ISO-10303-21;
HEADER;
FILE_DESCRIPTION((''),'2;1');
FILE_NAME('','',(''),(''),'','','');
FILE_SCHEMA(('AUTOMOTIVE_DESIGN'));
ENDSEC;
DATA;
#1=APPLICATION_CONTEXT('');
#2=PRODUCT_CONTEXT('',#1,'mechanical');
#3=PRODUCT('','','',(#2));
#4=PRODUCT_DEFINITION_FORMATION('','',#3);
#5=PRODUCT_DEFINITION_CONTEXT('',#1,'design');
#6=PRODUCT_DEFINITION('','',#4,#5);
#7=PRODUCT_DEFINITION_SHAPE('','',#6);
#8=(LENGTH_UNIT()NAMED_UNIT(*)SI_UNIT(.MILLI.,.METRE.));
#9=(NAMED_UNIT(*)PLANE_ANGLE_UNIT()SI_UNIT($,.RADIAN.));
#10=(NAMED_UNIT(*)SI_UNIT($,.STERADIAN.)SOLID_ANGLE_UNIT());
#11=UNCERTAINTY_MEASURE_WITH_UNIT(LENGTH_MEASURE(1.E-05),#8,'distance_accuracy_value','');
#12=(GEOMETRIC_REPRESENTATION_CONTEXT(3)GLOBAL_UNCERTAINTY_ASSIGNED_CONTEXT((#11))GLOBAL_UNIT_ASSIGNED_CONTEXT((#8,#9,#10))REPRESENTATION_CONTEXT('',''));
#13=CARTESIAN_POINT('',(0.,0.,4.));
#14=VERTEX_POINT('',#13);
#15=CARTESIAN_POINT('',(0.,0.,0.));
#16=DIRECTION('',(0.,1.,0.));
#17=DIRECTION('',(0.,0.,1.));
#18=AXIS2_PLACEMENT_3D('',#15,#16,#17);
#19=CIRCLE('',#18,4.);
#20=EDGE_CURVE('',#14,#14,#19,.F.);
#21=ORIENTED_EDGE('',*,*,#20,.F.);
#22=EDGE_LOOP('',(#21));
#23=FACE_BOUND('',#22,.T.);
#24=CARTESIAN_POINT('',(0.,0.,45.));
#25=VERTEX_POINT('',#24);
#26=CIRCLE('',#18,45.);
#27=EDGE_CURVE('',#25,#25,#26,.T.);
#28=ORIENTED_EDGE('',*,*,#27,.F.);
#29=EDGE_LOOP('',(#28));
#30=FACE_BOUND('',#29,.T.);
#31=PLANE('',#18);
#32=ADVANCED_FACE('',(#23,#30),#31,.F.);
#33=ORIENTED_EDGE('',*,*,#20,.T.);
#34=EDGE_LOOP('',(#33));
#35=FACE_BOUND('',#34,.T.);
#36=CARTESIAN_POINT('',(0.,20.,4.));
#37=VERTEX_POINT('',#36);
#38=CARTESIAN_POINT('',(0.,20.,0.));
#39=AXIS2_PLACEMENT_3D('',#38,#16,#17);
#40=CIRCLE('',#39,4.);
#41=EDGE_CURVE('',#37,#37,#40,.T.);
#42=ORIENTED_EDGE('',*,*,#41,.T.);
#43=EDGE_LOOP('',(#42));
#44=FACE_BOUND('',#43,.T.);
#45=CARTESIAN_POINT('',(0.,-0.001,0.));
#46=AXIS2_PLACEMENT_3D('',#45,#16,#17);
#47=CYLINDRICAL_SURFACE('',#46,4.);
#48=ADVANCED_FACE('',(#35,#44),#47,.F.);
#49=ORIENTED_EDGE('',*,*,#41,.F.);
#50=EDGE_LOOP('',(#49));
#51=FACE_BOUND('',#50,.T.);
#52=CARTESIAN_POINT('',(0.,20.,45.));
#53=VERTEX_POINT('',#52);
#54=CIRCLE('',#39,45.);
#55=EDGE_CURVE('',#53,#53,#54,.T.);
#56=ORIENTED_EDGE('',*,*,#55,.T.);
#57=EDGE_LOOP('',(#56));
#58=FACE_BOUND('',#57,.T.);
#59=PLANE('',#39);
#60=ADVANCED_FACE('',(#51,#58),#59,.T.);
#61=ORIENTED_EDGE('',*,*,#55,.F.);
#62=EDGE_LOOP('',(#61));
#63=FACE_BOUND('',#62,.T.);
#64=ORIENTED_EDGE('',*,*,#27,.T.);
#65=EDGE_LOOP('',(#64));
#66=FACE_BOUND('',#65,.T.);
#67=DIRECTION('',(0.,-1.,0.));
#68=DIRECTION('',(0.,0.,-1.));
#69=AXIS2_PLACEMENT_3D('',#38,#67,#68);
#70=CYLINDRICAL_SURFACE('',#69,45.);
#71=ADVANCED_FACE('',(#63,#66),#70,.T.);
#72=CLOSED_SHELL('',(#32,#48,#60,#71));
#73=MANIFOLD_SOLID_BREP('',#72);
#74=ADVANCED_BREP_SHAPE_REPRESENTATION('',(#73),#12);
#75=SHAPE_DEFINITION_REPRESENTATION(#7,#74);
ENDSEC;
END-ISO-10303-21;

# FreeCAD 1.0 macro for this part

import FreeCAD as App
import Part
import Sketcher
from FreeCAD import Vector
Q = App.Units.Quantity

doc = App.newDocument("Part")
body = doc.addObject("PartDesign::Body", "Body")

# Sketch on XZ plane
sketch1 = body.newObject("Sketcher::SketchObject", "Sketch")
sketch1.AttachmentSupport = (doc.getObject("XZ_Plane"), [""])
sketch1.MapMode = "FlatFace"
sketch1.addGeometry(Part.Circle(Vector(0, 0, 0), Vector(0, 0, 1), 45), False)
sketch1.addConstraint([
    Sketcher.Constraint("Coincident", 0, 3, -1, 1),
    Sketcher.Constraint("Diameter", 0, Q("90 mm")),
])
pad1 = body.newObject("PartDesign::Pad", "Pad")
pad1.Profile = sketch1
pad1.Length = 20
pad1.Reversed = True

# Sketch on XZ plane
sketch2 = body.newObject("Sketcher::SketchObject", "Sketch001")
sketch2.AttachmentSupport = (doc.getObject("XZ_Plane"), [""])
sketch2.MapMode = "FlatFace"
sketch2.AttachmentOffset = App.Placement(Vector(0, 0, -20), App.Rotation())
sketch2.addGeometry(Part.Circle(Vector(0, 0, 0), Vector(0, 0, 1), 4), False)
sketch2.addConstraint([
    Sketcher.Constraint("Coincident", 0, 3, -1, 1),
    Sketcher.Constraint("Diameter", 0, Q("8 mm")),
])
pocket1 = body.newObject("PartDesign::Pocket", "Pocket")
pocket1.Profile = sketch2
pocket1.Type = "UpToFirst"
pocket1.Reversed = True

doc.recompute()
